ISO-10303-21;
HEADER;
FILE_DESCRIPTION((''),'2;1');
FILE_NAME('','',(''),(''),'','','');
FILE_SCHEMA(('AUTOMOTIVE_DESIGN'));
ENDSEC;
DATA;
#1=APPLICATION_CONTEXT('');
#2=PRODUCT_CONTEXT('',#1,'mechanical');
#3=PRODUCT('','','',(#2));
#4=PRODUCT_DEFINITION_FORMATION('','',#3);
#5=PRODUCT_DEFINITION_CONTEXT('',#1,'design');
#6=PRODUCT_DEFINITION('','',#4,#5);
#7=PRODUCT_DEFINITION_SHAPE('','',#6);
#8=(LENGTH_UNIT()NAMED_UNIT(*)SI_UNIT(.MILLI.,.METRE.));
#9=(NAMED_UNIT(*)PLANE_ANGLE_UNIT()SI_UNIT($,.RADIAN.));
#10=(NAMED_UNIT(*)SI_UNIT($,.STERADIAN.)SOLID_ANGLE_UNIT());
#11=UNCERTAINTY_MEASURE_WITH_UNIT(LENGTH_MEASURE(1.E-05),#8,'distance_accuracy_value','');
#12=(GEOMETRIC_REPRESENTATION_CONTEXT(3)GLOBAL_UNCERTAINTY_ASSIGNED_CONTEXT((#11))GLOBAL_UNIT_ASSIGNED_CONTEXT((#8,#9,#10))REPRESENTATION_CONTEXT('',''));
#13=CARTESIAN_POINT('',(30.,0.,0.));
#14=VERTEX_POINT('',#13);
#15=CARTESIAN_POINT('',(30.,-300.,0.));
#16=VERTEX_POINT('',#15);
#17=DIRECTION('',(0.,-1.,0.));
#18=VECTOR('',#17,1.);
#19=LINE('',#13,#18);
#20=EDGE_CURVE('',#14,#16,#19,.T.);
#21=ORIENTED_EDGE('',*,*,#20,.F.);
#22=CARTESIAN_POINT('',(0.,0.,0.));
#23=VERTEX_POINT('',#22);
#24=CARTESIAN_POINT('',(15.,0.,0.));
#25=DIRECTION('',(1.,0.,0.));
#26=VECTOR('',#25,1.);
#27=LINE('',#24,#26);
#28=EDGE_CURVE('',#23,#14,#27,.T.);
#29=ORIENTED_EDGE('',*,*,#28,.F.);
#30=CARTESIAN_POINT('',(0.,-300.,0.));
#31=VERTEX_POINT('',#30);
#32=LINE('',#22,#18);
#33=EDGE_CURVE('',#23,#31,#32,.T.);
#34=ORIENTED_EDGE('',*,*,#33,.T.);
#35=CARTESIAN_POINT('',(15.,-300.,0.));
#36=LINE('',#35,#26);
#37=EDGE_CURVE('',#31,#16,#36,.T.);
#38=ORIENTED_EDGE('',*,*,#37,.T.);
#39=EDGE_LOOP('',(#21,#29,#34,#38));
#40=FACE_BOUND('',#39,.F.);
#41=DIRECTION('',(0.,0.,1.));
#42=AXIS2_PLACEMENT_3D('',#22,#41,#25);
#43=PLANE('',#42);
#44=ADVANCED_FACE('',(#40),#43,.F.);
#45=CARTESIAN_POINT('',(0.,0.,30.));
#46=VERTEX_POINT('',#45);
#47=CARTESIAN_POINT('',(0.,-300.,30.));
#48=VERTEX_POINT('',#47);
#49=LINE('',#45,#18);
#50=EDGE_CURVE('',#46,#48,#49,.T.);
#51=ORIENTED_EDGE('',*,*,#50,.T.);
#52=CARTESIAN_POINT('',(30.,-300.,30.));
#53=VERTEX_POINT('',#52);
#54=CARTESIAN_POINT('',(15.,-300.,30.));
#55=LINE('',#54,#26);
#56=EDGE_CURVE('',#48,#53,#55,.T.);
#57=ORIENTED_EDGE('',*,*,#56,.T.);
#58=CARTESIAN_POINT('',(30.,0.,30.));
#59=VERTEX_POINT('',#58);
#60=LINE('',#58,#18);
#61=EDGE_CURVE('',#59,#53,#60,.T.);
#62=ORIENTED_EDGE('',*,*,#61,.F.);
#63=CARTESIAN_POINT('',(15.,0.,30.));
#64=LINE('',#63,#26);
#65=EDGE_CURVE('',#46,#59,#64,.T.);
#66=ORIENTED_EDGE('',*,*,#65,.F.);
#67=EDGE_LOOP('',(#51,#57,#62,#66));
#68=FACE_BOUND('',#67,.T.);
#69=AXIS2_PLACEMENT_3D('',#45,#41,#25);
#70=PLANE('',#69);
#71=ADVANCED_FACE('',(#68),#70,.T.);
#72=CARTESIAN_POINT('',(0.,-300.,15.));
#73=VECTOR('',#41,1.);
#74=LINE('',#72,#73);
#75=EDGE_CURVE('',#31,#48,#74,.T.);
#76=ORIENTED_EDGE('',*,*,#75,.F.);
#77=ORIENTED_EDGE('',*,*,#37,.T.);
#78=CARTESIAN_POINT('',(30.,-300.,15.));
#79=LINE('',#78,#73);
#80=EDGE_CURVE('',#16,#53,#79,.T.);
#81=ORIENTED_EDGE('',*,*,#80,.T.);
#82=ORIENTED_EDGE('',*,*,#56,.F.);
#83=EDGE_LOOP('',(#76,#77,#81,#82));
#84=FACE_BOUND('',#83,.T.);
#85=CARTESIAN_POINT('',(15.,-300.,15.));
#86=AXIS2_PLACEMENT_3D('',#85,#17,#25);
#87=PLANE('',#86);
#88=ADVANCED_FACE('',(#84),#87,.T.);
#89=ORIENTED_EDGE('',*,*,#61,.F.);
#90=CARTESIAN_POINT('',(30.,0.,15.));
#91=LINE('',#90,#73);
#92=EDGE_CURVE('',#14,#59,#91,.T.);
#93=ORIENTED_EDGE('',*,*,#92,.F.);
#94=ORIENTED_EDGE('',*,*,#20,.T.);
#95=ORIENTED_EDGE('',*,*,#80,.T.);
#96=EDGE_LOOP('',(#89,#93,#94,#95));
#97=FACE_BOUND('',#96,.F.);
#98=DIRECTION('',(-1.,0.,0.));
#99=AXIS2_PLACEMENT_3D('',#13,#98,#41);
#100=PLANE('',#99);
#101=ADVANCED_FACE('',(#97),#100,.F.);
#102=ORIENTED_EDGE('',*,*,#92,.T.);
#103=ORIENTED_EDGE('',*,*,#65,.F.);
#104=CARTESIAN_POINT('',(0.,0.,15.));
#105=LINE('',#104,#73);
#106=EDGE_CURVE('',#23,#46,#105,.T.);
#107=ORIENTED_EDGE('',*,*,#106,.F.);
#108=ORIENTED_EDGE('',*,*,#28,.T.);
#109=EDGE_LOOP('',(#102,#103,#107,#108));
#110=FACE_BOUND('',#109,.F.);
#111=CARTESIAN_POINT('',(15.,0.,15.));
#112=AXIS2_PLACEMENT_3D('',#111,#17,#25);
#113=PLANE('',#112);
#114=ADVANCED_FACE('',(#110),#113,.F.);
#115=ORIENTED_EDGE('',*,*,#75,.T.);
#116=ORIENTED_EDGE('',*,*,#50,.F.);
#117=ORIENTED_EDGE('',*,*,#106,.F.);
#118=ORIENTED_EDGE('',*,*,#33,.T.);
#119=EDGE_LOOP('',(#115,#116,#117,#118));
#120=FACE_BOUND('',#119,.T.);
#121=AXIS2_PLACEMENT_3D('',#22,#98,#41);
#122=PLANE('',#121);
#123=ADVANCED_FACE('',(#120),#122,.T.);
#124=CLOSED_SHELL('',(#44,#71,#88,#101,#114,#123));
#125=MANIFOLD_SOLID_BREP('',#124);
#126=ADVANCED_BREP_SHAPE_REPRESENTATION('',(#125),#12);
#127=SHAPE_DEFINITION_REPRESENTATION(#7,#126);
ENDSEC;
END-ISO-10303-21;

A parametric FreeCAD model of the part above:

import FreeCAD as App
import Part
import Sketcher
from FreeCAD import Vector
Q = App.Units.Quantity

doc = App.newDocument("Part")
params = doc.addObject("Spreadsheet::Sheet", "Params")
for row, (alias, value) in enumerate([
    ("sketch1_width", "30 mm"),
    ("pad1_length", "300 mm"),
], start=1):
    params.set(f"A{row}", alias)
    params.set(f"B{row}", "=" + value)
    params.setAlias(f"B{row}", alias)

body = doc.addObject("PartDesign::Body", "Body")

# Sketch on XZ plane
sketch1 = doc.addObject("Sketcher::SketchObject", "Sketch")
body.addObject(sketch1)
sketch1.AttachmentSupport = (doc.XZ_Plane, [""])
sketch1.MapMode = "FlatFace"
sketch1.addGeometry([
    Part.LineSegment(Vector(0, 30, 0), Vector(0, 0, 0)),
    Part.LineSegment(Vector(0, 0, 0), Vector(30, 0, 0)),
    Part.LineSegment(Vector(30, 0, 0), Vector(30, 30, 0)),
    Part.LineSegment(Vector(30, 30, 0), Vector(0, 30, 0)),
], False)
sketch1.addConstraint([
    Sketcher.Constraint("Coincident", 0, 2, 1, 1),
    Sketcher.Constraint("Coincident", 1, 2, 2, 1),
    Sketcher.Constraint("Coincident", 2, 2, 3, 1),
    Sketcher.Constraint("Coincident", 3, 2, 0, 1),
    Sketcher.Constraint("Vertical", 0),
    Sketcher.Constraint("Horizontal", 1),
    Sketcher.Constraint("Vertical", 2),
    Sketcher.Constraint("Horizontal", 3),
    Sketcher.Constraint("Coincident", 0, 2, -1, 1),
    Sketcher.Constraint("Equal", 3, 0),
    Sketcher.Constraint("DistanceX", 1, 1, 1, 2, Q("30 mm")),
])
sketch1.setExpression("Constraints[10]", "Params.sketch1_width")
pad1 = doc.addObject("PartDesign::Pad", "Pad")
body.addObject(pad1)
pad1.Profile = sketch1
pad1.setExpression("Length", "Params.pad1_length")

doc.recompute()
